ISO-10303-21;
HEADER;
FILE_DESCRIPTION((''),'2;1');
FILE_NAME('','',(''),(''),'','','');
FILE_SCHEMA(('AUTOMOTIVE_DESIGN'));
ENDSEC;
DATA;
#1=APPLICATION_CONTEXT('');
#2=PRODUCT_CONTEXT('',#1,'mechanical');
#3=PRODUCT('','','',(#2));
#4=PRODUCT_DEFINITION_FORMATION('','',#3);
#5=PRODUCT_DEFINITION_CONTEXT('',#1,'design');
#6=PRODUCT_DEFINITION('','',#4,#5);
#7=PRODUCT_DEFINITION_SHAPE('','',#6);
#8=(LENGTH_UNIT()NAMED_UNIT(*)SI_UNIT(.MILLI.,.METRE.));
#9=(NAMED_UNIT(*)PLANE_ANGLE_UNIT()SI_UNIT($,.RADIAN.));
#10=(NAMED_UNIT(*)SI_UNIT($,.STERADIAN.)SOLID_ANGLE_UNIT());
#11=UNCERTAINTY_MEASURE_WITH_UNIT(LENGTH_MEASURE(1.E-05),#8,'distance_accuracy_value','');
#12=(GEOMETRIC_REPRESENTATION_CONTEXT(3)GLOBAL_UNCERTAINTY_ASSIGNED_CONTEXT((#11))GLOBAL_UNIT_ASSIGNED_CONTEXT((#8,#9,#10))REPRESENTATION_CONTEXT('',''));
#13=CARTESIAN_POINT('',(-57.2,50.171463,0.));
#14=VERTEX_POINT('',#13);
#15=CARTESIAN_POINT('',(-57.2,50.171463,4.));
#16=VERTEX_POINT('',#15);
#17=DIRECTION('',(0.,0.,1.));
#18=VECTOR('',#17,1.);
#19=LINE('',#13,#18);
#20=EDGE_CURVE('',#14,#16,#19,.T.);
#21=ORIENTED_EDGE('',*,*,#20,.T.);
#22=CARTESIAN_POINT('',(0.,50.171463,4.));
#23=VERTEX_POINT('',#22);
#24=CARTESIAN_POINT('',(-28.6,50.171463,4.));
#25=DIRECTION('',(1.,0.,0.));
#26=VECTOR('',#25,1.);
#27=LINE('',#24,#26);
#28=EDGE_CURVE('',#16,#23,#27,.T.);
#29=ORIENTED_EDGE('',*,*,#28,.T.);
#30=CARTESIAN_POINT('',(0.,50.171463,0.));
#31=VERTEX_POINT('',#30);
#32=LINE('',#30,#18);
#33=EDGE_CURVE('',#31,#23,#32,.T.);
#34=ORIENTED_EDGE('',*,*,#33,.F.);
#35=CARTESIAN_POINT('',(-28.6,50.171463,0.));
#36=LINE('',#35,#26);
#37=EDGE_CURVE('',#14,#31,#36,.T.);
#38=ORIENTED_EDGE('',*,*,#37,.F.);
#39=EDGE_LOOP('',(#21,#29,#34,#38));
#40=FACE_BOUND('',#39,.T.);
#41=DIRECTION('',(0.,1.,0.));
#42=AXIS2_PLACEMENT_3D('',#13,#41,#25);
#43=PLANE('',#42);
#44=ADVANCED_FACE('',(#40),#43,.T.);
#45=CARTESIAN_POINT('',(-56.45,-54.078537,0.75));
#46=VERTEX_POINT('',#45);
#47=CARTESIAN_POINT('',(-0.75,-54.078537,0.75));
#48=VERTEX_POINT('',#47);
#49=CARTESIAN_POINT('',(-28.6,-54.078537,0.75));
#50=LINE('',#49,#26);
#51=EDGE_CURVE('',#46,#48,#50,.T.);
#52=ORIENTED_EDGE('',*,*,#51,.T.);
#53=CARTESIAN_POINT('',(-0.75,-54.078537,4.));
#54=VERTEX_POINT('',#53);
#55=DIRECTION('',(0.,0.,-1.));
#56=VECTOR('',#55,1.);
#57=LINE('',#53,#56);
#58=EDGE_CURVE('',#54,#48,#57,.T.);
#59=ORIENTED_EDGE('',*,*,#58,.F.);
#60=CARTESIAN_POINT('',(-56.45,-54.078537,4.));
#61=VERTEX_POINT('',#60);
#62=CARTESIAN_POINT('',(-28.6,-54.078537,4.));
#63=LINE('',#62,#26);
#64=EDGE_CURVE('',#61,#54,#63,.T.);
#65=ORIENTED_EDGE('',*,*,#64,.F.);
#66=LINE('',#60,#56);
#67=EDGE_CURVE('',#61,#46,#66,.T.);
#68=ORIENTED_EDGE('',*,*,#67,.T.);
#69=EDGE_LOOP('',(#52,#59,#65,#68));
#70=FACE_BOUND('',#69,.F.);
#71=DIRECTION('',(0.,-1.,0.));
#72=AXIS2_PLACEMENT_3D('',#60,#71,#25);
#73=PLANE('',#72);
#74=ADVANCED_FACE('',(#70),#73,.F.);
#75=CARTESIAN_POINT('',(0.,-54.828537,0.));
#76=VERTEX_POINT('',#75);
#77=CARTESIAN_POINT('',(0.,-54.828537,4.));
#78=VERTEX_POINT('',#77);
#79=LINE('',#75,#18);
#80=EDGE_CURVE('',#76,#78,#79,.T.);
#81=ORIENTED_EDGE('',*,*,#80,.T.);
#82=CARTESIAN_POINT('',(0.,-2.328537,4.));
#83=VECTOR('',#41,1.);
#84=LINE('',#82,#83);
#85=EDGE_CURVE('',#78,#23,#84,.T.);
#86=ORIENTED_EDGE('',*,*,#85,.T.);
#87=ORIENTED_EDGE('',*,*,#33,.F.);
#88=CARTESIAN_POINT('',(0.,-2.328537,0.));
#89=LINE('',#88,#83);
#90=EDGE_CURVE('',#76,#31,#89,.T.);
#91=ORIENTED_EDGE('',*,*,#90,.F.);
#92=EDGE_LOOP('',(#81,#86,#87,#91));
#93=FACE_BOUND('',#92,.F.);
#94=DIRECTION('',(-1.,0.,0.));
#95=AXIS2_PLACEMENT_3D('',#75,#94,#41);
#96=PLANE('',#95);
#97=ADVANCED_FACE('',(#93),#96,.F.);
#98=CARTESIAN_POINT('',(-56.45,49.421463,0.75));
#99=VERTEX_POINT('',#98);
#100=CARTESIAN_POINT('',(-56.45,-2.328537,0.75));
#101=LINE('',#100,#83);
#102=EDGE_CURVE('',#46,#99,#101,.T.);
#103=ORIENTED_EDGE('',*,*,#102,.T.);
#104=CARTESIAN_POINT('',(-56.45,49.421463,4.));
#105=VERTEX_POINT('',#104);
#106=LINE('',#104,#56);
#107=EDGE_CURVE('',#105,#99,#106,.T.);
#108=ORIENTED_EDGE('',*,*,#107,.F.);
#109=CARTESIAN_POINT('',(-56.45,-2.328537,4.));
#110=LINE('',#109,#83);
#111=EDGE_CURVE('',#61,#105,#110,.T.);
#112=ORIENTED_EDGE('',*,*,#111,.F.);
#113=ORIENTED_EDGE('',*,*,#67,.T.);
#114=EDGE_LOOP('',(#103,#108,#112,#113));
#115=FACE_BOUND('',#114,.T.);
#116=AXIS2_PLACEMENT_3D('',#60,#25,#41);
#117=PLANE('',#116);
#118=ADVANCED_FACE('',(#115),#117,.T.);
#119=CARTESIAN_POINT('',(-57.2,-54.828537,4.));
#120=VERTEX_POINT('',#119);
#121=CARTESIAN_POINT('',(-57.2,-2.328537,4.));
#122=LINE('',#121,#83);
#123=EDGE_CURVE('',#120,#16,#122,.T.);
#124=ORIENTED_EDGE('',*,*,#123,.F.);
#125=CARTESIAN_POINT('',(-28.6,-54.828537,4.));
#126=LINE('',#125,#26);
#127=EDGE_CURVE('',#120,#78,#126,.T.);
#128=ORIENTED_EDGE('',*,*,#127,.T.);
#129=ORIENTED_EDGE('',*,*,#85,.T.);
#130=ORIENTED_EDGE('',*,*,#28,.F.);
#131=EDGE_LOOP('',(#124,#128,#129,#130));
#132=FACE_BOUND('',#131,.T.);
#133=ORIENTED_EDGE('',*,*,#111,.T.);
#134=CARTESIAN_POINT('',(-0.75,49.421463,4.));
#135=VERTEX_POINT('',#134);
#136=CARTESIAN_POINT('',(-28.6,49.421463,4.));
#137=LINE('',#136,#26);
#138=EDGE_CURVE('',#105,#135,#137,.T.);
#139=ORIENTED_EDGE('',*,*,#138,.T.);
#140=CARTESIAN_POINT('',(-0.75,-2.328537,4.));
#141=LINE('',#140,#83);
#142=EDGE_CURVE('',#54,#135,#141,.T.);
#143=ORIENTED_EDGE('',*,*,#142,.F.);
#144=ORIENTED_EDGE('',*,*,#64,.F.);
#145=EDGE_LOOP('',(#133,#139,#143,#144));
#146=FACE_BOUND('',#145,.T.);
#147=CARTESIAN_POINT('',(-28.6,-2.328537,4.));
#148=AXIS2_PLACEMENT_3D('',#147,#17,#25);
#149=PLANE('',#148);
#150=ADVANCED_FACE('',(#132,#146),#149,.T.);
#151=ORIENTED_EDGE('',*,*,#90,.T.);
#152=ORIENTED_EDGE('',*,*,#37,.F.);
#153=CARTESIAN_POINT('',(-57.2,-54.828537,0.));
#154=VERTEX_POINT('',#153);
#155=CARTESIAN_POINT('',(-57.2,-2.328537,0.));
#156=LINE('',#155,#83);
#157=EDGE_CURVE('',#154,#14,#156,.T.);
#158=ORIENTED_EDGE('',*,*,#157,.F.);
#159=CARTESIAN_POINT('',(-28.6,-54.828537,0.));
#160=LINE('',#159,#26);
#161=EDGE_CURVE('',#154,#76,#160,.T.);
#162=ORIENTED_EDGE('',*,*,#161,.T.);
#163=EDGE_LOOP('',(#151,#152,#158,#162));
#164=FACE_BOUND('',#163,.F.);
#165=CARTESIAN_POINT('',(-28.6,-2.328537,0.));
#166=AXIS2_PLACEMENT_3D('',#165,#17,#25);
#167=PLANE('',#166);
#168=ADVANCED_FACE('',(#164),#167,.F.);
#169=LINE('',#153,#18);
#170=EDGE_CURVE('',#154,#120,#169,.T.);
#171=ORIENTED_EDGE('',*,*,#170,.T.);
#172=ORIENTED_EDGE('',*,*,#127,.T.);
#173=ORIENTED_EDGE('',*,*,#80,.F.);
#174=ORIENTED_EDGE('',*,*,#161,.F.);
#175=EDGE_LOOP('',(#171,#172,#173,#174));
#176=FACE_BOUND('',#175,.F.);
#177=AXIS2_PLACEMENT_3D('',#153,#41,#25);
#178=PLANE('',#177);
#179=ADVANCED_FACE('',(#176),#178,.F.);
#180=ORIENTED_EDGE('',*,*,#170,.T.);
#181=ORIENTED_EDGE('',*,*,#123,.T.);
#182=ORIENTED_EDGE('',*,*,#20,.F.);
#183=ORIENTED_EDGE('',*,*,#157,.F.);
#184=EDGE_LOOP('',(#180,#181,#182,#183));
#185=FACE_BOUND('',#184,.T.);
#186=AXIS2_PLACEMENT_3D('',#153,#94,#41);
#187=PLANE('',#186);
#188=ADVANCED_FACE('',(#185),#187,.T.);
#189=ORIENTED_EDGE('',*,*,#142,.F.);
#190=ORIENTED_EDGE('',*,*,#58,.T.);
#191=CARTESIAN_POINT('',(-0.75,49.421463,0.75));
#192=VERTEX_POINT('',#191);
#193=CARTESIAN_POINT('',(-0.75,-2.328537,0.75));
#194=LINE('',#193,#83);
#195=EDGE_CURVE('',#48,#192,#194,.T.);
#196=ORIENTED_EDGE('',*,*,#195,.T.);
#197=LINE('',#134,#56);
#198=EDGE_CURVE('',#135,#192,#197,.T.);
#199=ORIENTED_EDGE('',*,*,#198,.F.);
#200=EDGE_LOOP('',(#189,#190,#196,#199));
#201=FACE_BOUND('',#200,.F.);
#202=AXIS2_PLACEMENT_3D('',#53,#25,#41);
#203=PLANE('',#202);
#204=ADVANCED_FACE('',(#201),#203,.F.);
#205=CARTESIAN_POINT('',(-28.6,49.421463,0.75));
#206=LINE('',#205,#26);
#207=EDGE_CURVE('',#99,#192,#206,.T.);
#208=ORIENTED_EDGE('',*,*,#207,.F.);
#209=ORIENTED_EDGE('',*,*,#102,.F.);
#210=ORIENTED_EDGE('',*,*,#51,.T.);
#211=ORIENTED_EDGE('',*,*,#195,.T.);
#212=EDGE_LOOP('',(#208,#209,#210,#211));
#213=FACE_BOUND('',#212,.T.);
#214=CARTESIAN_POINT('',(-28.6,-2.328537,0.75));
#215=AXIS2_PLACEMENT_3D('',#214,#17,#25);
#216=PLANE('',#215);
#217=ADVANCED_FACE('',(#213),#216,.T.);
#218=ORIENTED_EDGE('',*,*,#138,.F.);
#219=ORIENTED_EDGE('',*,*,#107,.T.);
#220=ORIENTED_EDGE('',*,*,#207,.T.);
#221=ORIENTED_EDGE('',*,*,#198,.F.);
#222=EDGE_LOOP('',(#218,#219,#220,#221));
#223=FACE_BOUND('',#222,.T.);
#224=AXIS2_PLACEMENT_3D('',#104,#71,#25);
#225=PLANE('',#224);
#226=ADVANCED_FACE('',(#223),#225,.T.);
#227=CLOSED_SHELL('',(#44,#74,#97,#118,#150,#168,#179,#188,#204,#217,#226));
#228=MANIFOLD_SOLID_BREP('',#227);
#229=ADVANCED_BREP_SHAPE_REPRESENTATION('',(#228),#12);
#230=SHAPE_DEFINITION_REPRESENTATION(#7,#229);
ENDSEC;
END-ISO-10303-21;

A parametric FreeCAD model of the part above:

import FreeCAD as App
import Part
import Sketcher
from FreeCAD import Vector
Q = App.Units.Quantity


def add_polygon(sketch, points):
    """Adds a closed chain of lines whose ends are joined by coincident constraints."""
    first, n = sketch.GeometryCount, len(points)
    for a, b in zip(points, points[1:] + points[:1]):
        sketch.addGeometry(Part.LineSegment(App.Vector(*a, 0), App.Vector(*b, 0)), False)
    for i in range(n):
        sketch.addConstraint(Sketcher.Constraint("Coincident", first + i, 2, first + (i + 1) % n, 1))

doc = App.newDocument("Part")
body = doc.addObject("PartDesign::Body", "Body")

# Sketch on XY plane
sketch1 = body.newObject("Sketcher::SketchObject", "Sketch")
sketch1.AttachmentSupport = (doc.getObject("XY_Plane"), [""])
sketch1.MapMode = "FlatFace"
add_polygon(sketch1, [(-57.2, 50.171463), (-57.2, -54.828537), (0, -54.828537), (0, 50.171463)])  # lines 0-3
sketch1.addConstraint([
    Sketcher.Constraint("Vertical", 0),
    Sketcher.Constraint("Horizontal", 1),
    Sketcher.Constraint("Vertical", 2),
    Sketcher.Constraint("Horizontal", 3),
    Sketcher.Constraint("PointOnObject", 1, 2, -2),
    Sketcher.Constraint("DistanceY", 0, 2, 0, 1, Q("105 mm")),
    Sketcher.Constraint("DistanceX", 1, 1, 1, 2, Q("57.2 mm")),
    Sketcher.Constraint("DistanceY", 0, 2, -1, 1, Q("54.828537 mm")),
])
pad1 = body.newObject("PartDesign::Pad", "Pad")
pad1.Profile = sketch1
pad1.Length = 4

# Sketch on XY plane
sketch2 = body.newObject("Sketcher::SketchObject", "Sketch001")
sketch2.AttachmentSupport = (doc.getObject("XY_Plane"), [""])
sketch2.MapMode = "FlatFace"
sketch2.AttachmentOffset = App.Placement(Vector(0, 0, 4), App.Rotation())
add_polygon(sketch2, [(-56.45, 49.421463), (-56.45, -54.078537), (-0.75, -54.078537), (-0.75, 49.421463)])  # lines 0-3
sketch2.addConstraint([
    Sketcher.Constraint("Vertical", 0),
    Sketcher.Constraint("Horizontal", 1),
    Sketcher.Constraint("Vertical", 2),
    Sketcher.Constraint("Horizontal", 3),
    Sketcher.Constraint("DistanceX", 1, 1, 1, 2, Q("55.7 mm")),
    Sketcher.Constraint("DistanceY", 0, 2, 0, 1, Q("103.5 mm")),
    Sketcher.Constraint("DistanceX", 0, 2, -1, 1, Q("56.45 mm")),
    Sketcher.Constraint("DistanceY", 0, 2, -1, 1, Q("54.078537 mm")),
])
pocket1 = body.newObject("PartDesign::Pocket", "Pocket")
pocket1.Profile = sketch2
pocket1.Length = 3.25

doc.recompute()
